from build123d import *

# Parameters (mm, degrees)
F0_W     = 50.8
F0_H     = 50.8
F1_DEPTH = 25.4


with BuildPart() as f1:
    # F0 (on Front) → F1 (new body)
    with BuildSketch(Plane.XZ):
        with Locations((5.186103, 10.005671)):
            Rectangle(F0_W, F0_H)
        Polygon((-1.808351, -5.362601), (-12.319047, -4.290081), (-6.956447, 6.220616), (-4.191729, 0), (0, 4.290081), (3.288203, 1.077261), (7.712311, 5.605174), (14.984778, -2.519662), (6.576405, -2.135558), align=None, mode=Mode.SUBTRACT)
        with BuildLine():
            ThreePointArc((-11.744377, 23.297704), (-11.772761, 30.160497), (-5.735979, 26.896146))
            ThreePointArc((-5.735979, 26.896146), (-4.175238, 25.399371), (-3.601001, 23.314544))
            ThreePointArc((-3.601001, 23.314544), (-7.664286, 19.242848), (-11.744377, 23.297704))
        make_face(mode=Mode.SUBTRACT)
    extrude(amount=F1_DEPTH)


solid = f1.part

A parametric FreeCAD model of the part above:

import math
import FreeCAD as App
import Part
import Sketcher
from FreeCAD import Vector
Q = App.Units.Quantity

doc = App.newDocument("Part")
body = doc.addObject("PartDesign::Body", "Body")

# Sketch on XZ plane
sketch1 = body.newObject("Sketcher::SketchObject", "Sketch")
sketch1.AttachmentSupport = (doc.getObject("XZ_Plane"), [""])
sketch1.MapMode = "FlatFace"
sketch1.addGeometry(Part.LineSegment(Vector(-20.2, 35.4, 0), Vector(-20.2, -15.4, 0)), False)
sketch1.addGeometry(Part.LineSegment(Vector(-20.2, -15.4, 0), Vector(30.6, -15.4, 0)), False)
sketch1.addGeometry(Part.LineSegment(Vector(30.6, -15.4, 0), Vector(30.6, 35.4, 0)), False)
sketch1.addGeometry(Part.LineSegment(Vector(30.6, 35.4, 0), Vector(-20.2, 35.4, 0)), False)
sketch1.addGeometry(Part.LineSegment(Vector(6.6, -2.1, 0), Vector(-1.8, -5.4, 0)), False)
sketch1.addGeometry(Part.LineSegment(Vector(-1.8, -5.4, 0), Vector(-12.3, -4.3, 0)), False)
sketch1.addGeometry(Part.LineSegment(Vector(-12.3, -4.3, 0), Vector(-7, 6.2, 0)), False)
sketch1.addGeometry(Part.LineSegment(Vector(-7, 6.2, 0), Vector(-4.2, 0, 0)), False)
sketch1.addGeometry(Part.LineSegment(Vector(-4.2, 0, 0), Vector(0, 4.3, 0)), False)
sketch1.addGeometry(Part.LineSegment(Vector(0, 4.3, 0), Vector(3.3, 1.1, 0)), False)
sketch1.addGeometry(Part.LineSegment(Vector(3.3, 1.1, 0), Vector(7.7, 5.6, 0)), False)
sketch1.addGeometry(Part.LineSegment(Vector(7.7, 5.6, 0), Vector(15, -2.5, 0)), False)
sketch1.addGeometry(Part.LineSegment(Vector(15, -2.5, 0), Vector(6.6, -2.1, 0)), False)
sketch1.addGeometry(Part.ArcOfCircle(Part.Circle(Vector(-7.7, 23.3, 0), Vector(0, 0, 1), 4.1), math.radians(-180), math.radians(0)), False)
sketch1.addGeometry(Part.ArcOfCircle(Part.Circle(Vector(-9.7, 26.7, 0), Vector(0, 0, 1), 4), math.radians(2), math.radians(240)), False)
sketch1.addGeometry(Part.ArcOfCircle(Part.Circle(Vector(-7.7, 23.3, 0), Vector(0, 0, 1), 4.1), math.radians(0), math.radians(62)), False)
sketch1.addConstraint(Sketcher.Constraint("Coincident", 0, 2, 1, 1))
sketch1.addConstraint(Sketcher.Constraint("Coincident", 1, 2, 2, 1))
sketch1.addConstraint(Sketcher.Constraint("Coincident", 2, 2, 3, 1))
sketch1.addConstraint(Sketcher.Constraint("Coincident", 3, 2, 0, 1))
sketch1.addConstraint(Sketcher.Constraint("Coincident", 4, 2, 5, 1))
sketch1.addConstraint(Sketcher.Constraint("Coincident", 5, 2, 6, 1))
sketch1.addConstraint(Sketcher.Constraint("Coincident", 6, 2, 7, 1))
sketch1.addConstraint(Sketcher.Constraint("Coincident", 7, 2, 8, 1))
sketch1.addConstraint(Sketcher.Constraint("Coincident", 8, 2, 9, 1))
sketch1.addConstraint(Sketcher.Constraint("Coincident", 9, 2, 10, 1))
sketch1.addConstraint(Sketcher.Constraint("Coincident", 10, 2, 11, 1))
sketch1.addConstraint(Sketcher.Constraint("Coincident", 11, 2, 12, 1))
sketch1.addConstraint(Sketcher.Constraint("Coincident", 12, 2, 4, 1))
sketch1.addConstraint(Sketcher.Constraint("Coincident", 13, 1, 14, 2))
sketch1.addConstraint(Sketcher.Constraint("Coincident", 14, 1, 15, 2))
sketch1.addConstraint(Sketcher.Constraint("Tangent", 15, 1, 13, 2))
sketch1.addConstraint(Sketcher.Constraint("Vertical", 0))
sketch1.addConstraint(Sketcher.Constraint("Horizontal", 1))
sketch1.addConstraint(Sketcher.Constraint("Vertical", 2))
sketch1.addConstraint(Sketcher.Constraint("Horizontal", 3))
sketch1.addConstraint(Sketcher.Constraint("PointOnObject", 7, 2, -1))
sketch1.addConstraint(Sketcher.Constraint("PointOnObject", 8, 2, -2))
sketch1.addConstraint(Sketcher.Constraint("Perpendicular", 8, 9))
sketch1.addConstraint(Sketcher.Constraint("Perpendicular", 9, 10))
sketch1.addConstraint(Sketcher.Constraint("Horizontal", 13, 3, 15, 1))
sketch1.addConstraint(Sketcher.Constraint("Equal", 3, 0))
sketch1.addConstraint(Sketcher.Constraint("DistanceX", 1, 1, 1, 2, Q("2 in")))
sketch1.addConstraint(Sketcher.Constraint("Radius", 14, 3.98991))
sketch1.addConstraint(Sketcher.Constraint("Radius", 13, 4.071705))
sketch1.addConstraint(Sketcher.Constraint("Radius", 15, 4.071703))
sketch1.addConstraint(Sketcher.Constraint("DistanceY", 11, 2, 8, 2, Q("0.2681001 in")))
sketch1.addConstraint(Sketcher.Constraint("DistanceY", 4, 2, -1, 1, 5.362601))
sketch1.addConstraint(Sketcher.Constraint("DistanceX", 15, 1, -1, 1, 3.601001))
sketch1.addConstraint(Sketcher.Constraint("DistanceY", 5, 2, 14, 3, 31.027602))
sketch1.addConstraint(Sketcher.Constraint("DistanceX", 5, 2, 6, 2, 5.3626))
sketch1.addConstraint(Sketcher.Constraint("DistanceY", 15, 3, 14, 1, 3.5816))
sketch1.addConstraint(Sketcher.Constraint("Distance", 6, 11.799671))
sketch1.addConstraint(Sketcher.Constraint("Distance", 7, 6.807329))
sketch1.addConstraint(Sketcher.Constraint("Distance", 8, 5.997949))
sketch1.addConstraint(Sketcher.Constraint("Distance", 10, 6.33046))
sketch1.addConstraint(Sketcher.Constraint("Distance", 12, 8.417142))
sketch1.addConstraint(Sketcher.Constraint("DistanceY", -1, 1, 14, 3, 26.737521))
sketch1.addConstraint(Sketcher.Constraint("DistanceY", 0, 2, -1, 1, 15.394329))
sketch1.addConstraint(Sketcher.Constraint("DistanceX", 4, 2, -1, 1, 1.808351))
sketch1.addConstraint(Sketcher.Constraint("DistanceX", 7, 2, -1, 1, 4.191729))
sketch1.addConstraint(Sketcher.Constraint("DistanceY", -1, 1, 9, 2, 1.077261))
sketch1.addConstraint(Sketcher.Constraint("DistanceY", 12, 2, -1, 1, 2.135558))
sketch1.addConstraint(Sketcher.Constraint("DistanceX", 14, 3, 15, 3, 2.05003))
sketch1.addConstraint(Sketcher.Constraint("DistanceX", 0, 2, 13, 3, 12.541191))
sketch1.addConstraint(Sketcher.Constraint("DistanceX", 4, 2, 11, 2, 16.793129))
pad1 = body.newObject("PartDesign::Pad", "Pad")
pad1.Profile = sketch1
pad1.Length = Q("1 in")

doc.recompute()
